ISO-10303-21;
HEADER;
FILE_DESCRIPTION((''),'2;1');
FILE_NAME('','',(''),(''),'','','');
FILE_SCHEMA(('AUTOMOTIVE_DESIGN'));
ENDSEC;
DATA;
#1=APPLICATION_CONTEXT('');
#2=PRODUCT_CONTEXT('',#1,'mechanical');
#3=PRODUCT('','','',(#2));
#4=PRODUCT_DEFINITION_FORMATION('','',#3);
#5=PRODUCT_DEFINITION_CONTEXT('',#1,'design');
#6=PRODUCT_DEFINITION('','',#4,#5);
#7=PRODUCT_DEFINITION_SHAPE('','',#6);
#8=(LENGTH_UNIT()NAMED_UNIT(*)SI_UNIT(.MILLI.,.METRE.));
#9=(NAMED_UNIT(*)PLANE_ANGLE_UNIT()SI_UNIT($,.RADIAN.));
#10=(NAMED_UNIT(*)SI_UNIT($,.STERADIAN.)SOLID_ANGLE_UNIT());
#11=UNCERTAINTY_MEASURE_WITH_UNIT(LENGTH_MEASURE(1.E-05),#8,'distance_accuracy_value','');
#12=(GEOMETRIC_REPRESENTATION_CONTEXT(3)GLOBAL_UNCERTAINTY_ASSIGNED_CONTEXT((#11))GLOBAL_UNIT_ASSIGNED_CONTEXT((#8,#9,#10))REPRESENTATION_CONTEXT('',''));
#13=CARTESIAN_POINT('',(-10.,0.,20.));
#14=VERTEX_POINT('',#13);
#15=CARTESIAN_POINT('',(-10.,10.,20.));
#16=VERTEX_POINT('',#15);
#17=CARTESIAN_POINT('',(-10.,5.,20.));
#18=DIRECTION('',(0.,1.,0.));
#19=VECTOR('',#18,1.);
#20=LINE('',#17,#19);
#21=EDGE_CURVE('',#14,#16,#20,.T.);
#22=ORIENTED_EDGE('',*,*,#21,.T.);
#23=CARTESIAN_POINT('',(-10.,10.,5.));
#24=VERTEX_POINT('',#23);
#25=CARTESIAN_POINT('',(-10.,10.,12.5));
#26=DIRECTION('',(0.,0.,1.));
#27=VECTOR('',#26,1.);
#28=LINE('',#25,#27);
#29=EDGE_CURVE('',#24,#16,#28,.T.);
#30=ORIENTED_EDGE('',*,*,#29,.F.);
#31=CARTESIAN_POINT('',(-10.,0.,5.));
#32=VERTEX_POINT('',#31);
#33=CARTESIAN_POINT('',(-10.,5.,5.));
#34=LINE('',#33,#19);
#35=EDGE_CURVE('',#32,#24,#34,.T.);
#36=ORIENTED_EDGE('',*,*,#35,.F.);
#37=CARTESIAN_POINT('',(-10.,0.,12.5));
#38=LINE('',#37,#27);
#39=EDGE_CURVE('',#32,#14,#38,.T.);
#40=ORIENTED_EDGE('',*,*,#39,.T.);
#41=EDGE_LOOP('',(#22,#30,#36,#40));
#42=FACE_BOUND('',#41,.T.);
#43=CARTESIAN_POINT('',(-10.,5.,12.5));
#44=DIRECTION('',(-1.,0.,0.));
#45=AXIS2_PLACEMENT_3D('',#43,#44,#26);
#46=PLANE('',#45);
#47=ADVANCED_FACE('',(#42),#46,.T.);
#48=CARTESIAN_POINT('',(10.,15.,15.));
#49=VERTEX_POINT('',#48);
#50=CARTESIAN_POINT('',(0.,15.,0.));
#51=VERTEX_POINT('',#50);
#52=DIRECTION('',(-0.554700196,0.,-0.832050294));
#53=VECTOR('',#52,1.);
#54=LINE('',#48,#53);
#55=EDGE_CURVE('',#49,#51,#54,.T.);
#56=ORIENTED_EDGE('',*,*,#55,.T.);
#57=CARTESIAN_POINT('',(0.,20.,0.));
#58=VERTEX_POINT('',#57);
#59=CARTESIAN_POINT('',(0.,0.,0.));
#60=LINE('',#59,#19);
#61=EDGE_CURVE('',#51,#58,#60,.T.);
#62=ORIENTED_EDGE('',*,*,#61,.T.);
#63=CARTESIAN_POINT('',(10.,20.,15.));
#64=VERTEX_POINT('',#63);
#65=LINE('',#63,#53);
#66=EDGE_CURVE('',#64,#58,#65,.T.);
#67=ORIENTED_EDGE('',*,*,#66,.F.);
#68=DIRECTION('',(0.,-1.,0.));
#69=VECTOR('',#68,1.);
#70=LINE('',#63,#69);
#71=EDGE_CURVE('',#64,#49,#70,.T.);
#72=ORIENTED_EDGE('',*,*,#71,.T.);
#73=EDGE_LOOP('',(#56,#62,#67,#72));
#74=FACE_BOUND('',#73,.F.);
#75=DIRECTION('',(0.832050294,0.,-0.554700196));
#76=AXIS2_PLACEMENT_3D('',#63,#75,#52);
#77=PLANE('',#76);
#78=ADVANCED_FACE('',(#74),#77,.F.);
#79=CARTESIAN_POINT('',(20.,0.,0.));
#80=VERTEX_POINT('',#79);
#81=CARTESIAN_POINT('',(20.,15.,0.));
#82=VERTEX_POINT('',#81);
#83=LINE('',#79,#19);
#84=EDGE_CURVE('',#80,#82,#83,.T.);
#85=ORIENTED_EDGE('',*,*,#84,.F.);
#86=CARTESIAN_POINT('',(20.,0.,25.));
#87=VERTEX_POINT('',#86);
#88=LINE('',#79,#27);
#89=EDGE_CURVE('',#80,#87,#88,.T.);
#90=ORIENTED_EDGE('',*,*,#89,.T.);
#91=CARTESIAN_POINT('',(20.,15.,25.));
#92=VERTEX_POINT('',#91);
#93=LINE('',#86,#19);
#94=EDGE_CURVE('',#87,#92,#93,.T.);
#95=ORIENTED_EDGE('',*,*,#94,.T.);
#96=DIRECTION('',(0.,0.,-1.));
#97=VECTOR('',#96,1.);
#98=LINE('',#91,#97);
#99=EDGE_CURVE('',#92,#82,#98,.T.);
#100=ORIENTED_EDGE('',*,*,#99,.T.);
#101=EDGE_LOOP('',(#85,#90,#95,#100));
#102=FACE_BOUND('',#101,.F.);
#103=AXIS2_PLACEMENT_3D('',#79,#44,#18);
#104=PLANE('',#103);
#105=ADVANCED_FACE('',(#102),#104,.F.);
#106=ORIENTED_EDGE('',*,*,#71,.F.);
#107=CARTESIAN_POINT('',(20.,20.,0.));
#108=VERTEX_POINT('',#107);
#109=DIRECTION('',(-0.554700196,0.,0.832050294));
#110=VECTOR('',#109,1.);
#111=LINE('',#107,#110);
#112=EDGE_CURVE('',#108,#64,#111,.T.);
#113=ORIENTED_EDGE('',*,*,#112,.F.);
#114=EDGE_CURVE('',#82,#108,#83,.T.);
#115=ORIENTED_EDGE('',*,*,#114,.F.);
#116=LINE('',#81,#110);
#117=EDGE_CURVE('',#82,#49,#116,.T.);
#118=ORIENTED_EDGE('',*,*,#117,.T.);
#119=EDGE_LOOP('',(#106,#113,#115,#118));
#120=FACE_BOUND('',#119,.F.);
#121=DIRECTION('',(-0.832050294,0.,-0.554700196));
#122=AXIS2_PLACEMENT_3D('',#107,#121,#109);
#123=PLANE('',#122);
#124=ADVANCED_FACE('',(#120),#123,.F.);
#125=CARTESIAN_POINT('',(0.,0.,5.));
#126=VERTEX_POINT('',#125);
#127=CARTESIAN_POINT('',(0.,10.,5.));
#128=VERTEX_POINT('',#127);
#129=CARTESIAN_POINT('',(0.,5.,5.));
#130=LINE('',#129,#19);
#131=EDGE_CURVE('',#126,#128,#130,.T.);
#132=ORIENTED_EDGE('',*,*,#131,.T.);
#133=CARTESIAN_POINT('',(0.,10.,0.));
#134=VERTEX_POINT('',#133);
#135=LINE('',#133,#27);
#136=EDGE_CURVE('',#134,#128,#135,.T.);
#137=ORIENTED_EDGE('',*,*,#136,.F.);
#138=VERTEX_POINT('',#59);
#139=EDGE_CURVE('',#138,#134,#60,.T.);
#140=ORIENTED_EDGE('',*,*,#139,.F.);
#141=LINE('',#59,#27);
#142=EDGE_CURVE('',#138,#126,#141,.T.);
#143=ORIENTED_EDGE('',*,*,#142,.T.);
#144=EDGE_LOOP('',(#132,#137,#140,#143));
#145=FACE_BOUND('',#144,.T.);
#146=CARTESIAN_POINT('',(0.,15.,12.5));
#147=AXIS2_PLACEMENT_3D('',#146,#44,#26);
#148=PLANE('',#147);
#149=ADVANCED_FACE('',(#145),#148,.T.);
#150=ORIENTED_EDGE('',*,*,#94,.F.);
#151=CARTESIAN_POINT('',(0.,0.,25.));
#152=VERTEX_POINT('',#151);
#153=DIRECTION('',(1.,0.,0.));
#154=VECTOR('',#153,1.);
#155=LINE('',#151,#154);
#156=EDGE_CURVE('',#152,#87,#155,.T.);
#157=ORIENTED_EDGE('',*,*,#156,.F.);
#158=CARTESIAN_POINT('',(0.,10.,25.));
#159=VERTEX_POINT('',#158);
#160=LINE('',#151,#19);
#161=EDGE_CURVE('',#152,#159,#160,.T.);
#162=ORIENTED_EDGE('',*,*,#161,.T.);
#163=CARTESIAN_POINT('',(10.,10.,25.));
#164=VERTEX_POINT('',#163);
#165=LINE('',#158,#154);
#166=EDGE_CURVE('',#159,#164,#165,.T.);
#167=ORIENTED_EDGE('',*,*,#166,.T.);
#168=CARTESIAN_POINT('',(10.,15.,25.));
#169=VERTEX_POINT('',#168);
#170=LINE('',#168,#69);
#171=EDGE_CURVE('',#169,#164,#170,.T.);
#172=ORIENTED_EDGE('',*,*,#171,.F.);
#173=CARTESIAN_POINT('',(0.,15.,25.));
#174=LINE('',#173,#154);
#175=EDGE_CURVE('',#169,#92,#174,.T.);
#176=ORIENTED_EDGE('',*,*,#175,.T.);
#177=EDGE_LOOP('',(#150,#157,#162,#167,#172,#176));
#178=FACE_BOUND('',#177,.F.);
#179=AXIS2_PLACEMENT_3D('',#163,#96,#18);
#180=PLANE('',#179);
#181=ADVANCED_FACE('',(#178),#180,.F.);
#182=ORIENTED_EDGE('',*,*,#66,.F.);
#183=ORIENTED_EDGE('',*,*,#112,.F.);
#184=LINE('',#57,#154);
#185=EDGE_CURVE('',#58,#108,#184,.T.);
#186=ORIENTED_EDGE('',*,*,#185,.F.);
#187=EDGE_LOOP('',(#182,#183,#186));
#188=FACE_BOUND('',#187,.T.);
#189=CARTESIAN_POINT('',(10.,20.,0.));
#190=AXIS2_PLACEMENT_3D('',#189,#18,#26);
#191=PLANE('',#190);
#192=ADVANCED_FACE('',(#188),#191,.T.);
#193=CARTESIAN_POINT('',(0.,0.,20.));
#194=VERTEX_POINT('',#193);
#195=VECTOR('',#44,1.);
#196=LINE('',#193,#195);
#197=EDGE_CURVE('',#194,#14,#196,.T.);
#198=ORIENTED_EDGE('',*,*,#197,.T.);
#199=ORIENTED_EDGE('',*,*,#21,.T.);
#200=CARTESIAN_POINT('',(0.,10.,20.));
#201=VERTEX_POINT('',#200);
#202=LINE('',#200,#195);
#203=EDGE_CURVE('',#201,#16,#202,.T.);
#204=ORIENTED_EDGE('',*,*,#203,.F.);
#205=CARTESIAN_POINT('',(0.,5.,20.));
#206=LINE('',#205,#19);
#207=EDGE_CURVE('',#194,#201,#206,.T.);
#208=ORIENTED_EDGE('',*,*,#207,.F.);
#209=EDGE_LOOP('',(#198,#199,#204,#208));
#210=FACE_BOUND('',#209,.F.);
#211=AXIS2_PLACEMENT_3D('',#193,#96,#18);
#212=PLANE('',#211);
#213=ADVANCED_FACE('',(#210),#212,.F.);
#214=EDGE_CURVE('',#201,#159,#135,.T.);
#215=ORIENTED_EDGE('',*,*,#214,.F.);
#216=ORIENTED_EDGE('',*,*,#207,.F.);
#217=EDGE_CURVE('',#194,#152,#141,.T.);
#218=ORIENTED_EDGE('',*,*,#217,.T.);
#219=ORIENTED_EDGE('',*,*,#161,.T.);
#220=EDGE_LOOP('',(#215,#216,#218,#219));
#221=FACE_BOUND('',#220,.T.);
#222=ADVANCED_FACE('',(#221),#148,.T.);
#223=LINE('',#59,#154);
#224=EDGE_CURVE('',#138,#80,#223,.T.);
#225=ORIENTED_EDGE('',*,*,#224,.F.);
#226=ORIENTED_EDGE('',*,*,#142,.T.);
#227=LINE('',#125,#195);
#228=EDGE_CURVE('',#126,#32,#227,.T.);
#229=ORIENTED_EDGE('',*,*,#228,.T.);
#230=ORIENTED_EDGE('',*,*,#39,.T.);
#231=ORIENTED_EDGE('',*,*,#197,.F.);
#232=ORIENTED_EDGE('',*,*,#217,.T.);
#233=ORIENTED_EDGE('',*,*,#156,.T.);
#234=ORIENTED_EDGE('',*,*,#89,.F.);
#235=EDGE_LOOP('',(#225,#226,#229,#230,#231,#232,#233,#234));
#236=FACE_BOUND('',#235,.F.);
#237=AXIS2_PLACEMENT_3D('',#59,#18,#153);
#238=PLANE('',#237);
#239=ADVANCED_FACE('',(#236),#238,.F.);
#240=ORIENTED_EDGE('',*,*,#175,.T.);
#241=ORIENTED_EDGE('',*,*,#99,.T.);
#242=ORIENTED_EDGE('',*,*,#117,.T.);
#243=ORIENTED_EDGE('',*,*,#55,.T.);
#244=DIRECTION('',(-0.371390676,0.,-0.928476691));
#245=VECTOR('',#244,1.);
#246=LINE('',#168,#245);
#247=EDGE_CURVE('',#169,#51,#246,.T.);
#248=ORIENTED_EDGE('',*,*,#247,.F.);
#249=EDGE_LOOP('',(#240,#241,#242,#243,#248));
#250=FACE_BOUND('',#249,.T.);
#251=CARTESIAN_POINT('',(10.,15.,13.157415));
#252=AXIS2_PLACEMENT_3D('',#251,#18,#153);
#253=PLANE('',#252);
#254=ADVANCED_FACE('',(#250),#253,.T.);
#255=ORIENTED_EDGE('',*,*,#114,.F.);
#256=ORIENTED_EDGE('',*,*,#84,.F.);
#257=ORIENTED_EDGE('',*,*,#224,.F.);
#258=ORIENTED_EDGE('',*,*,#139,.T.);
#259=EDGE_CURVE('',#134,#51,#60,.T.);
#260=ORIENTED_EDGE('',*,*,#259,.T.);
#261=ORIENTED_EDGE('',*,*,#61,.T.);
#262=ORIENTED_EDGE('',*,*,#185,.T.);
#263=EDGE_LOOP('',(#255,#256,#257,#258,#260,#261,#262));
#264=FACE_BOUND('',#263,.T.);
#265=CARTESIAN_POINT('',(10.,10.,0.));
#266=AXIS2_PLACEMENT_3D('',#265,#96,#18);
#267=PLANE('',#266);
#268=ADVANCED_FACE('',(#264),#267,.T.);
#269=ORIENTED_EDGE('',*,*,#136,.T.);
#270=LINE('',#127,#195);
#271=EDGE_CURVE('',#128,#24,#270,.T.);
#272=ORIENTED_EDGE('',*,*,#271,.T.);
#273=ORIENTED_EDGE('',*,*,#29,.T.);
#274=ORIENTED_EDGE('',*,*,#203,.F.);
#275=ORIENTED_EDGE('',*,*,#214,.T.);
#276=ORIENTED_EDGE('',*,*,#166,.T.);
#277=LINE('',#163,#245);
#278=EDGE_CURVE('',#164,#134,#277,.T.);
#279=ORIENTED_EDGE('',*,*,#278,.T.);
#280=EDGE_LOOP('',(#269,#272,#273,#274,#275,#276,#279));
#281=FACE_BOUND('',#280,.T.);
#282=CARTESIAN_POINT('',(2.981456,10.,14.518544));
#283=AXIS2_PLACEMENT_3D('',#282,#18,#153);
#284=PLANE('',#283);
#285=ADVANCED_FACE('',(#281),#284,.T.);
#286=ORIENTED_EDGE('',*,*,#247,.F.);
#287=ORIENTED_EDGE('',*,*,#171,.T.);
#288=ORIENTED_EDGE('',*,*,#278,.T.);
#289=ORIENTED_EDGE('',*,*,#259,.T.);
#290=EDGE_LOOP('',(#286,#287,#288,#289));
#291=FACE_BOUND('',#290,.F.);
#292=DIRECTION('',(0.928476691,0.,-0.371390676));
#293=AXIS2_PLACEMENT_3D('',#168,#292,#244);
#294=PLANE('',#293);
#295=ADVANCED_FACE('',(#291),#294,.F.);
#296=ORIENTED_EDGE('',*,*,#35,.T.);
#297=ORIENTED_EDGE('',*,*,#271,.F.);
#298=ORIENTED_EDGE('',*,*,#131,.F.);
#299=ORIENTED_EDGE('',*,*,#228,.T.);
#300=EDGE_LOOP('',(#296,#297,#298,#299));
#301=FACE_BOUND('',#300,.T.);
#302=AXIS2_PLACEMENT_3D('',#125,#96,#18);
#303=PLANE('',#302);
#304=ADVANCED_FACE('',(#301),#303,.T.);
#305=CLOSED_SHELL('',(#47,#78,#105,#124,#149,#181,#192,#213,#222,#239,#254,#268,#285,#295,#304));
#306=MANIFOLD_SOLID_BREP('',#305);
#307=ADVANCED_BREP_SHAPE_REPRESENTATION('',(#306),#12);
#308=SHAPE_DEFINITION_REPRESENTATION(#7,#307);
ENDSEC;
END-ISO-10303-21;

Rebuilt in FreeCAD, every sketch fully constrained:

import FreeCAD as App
import Part
import Sketcher
from FreeCAD import Vector
Q = App.Units.Quantity

doc = App.newDocument("Part")
body = doc.addObject("PartDesign::Body", "Body")

sketch1 = body.newObject("Sketcher::SketchObject", "Sketch")
sketch1.AttachmentSupport = (doc.getObject("XY_Plane"), [""])
sketch1.MapMode = "FlatFace"
sketch1.addGeometry([
    Part.LineSegment(Vector(0, 0, 0), Vector(20, 0, 0)),
    Part.LineSegment(Vector(20, 0, 0), Vector(20, 20, 0)),
    Part.LineSegment(Vector(20, 20, 0), Vector(10, 20, 0)),
    Part.LineSegment(Vector(10, 20, 0), Vector(10, 10, 0)),
    Part.LineSegment(Vector(10, 10, 0), Vector(0, 10, 0)),
    Part.LineSegment(Vector(0, 10, 0), Vector(0, 0, 0)),
], False)
sketch1.addConstraint([
    Sketcher.Constraint("Coincident", 0, 2, 1, 1),
    Sketcher.Constraint("Coincident", 1, 2, 2, 1),
    Sketcher.Constraint("Coincident", 2, 2, 3, 1),
    Sketcher.Constraint("Coincident", 3, 2, 4, 1),
    Sketcher.Constraint("Coincident", 4, 2, 5, 1),
    Sketcher.Constraint("Coincident", 5, 2, 0, 1),
    Sketcher.Constraint("Horizontal", 0),
    Sketcher.Constraint("Vertical", 1),
    Sketcher.Constraint("Horizontal", 2),
    Sketcher.Constraint("Vertical", 3),
    Sketcher.Constraint("Horizontal", 4),
    Sketcher.Constraint("Vertical", 5),
    Sketcher.Constraint("Coincident", 5, 2, -1, 1),
    Sketcher.Constraint("Equal", 2, 4),
    Sketcher.Constraint("Equal", 0, 1),
    Sketcher.Constraint("Equal", 4, 3),
    Sketcher.Constraint("DistanceX", 0, 1, 0, 2, Q("20 mm")),
])
pad1 = body.newObject("PartDesign::Pad", "Pad")
pad1.Profile = sketch1
pad1.Length = 25

sketch2 = body.newObject("Sketcher::SketchObject", "Sketch001")
sketch2.AttachmentSupport = (doc.getObject("YZ_Plane"), [""])
sketch2.MapMode = "FlatFace"
sketch2.addGeometry([
    Part.LineSegment(Vector(10, 5, 0), Vector(0, 5, 0)),
    Part.LineSegment(Vector(0, 5, 0), Vector(0, 20, 0)),
    Part.LineSegment(Vector(0, 20, 0), Vector(10, 20, 0)),
    Part.LineSegment(Vector(10, 20, 0), Vector(10, 5, 0)),
], False)
sketch2.addConstraint([
    Sketcher.Constraint("Coincident", 0, 2, 1, 1),
    Sketcher.Constraint("Coincident", 1, 2, 2, 1),
    Sketcher.Constraint("Coincident", 2, 2, 3, 1),
    Sketcher.Constraint("Coincident", 3, 2, 0, 1),
    Sketcher.Constraint("Horizontal", 0),
    Sketcher.Constraint("Vertical", 1),
    Sketcher.Constraint("Horizontal", 2),
    Sketcher.Constraint("Vertical", 3),
    Sketcher.Constraint("PointOnObject", 0, 2, -2),
    Sketcher.Constraint("DistanceX", 0, 2, 0, 1, Q("10 mm")),
    Sketcher.Constraint("DistanceY", 1, 1, 1, 2, Q("15 mm")),
    Sketcher.Constraint("DistanceY", -1, 1, 0, 2, Q("5 mm")),
])
pad2 = body.newObject("PartDesign::Pad", "Pad001")
pad2.Profile = sketch2
pad2.Length = 10
pad2.Reversed = True

sketch3 = body.newObject("Sketcher::SketchObject", "Sketch002")
sketch3.AttachmentSupport = (doc.getObject("YZ_Plane"), [""])
sketch3.MapMode = "FlatFace"
sketch3.AttachmentOffset = App.Placement(Vector(0, 0, 10), App.Rotation())
sketch3.addGeometry([
    Part.LineSegment(Vector(20, 0, 0), Vector(10, 0, 0)),
    Part.LineSegment(Vector(10, 0, 0), Vector(10, 25, 0)),
    Part.LineSegment(Vector(10, 25, 0), Vector(20, 25, 0)),
    Part.LineSegment(Vector(20, 25, 0), Vector(20, 0, 0)),
], False)
sketch3.addConstraint([
    Sketcher.Constraint("Coincident", 0, 2, 1, 1),
    Sketcher.Constraint("Coincident", 1, 2, 2, 1),
    Sketcher.Constraint("Coincident", 2, 2, 3, 1),
    Sketcher.Constraint("Coincident", 3, 2, 0, 1),
    Sketcher.Constraint("Horizontal", 0),
    Sketcher.Constraint("Vertical", 1),
    Sketcher.Constraint("Horizontal", 2),
    Sketcher.Constraint("Vertical", 3),
    Sketcher.Constraint("PointOnObject", 0, 2, -1),
    Sketcher.Constraint("DistanceX", 0, 2, 0, 1, Q("10 mm")),
    Sketcher.Constraint("DistanceY", 1, 1, 1, 2, Q("25 mm")),
    Sketcher.Constraint("DistanceX", -1, 1, 0, 2, Q("10 mm")),
])
pad3 = body.newObject("PartDesign::Pad", "Pad002")
pad3.Profile = sketch3
pad3.Length = 10
pad3.Reversed = True

sketch4 = body.newObject("Sketcher::SketchObject", "Sketch003")
sketch4.AttachmentSupport = (doc.getObject("XZ_Plane"), [""])
sketch4.MapMode = "FlatFace"
sketch4.AttachmentOffset = App.Placement(Vector(0, 0, -20), App.Rotation())
sketch4.addGeometry([
    Part.LineSegment(Vector(0, 0, 0), Vector(0, 25, 0)),
    Part.LineSegment(Vector(0, 25, 0), Vector(20, 25, 0)),
    Part.LineSegment(Vector(20, 25, 0), Vector(20, 0, 0)),
    Part.LineSegment(Vector(20, 0, 0), Vector(10, 15, 0)),
    Part.LineSegment(Vector(10, 15, 0), Vector(0, 0, 0)),
], False)
sketch4.addConstraint([
    Sketcher.Constraint("Coincident", 0, 2, 1, 1),
    Sketcher.Constraint("Coincident", 1, 2, 2, 1),
    Sketcher.Constraint("Coincident", 2, 2, 3, 1),
    Sketcher.Constraint("Coincident", 3, 2, 4, 1),
    Sketcher.Constraint("Coincident", 4, 2, 0, 1),
    Sketcher.Constraint("Vertical", 0),
    Sketcher.Constraint("Horizontal", 1),
    Sketcher.Constraint("Vertical", 2),
    Sketcher.Constraint("Coincident", 4, 2, -1, 1),
    Sketcher.Constraint("PointOnObject", 2, 2, -1),
    Sketcher.Constraint("Equal", 3, 4),
    Sketcher.Constraint("DistanceX", 1, 1, 1, 2, Q("20 mm")),
    Sketcher.Constraint("DistanceY", 0, 1, 0, 2, Q("25 mm")),
    Sketcher.Constraint("DistanceY", -1, 1, 3, 2, Q("15 mm")),
])
pocket1 = body.newObject("PartDesign::Pocket", "Pocket")
pocket1.Profile = sketch4
pocket1.Length = 5
pocket1.Reversed = True

sketch5 = body.newObject("Sketcher::SketchObject", "Sketch004")
sketch5.AttachmentSupport = (doc.getObject("XZ_Plane"), [""])
sketch5.MapMode = "FlatFace"
sketch5.AttachmentOffset = App.Placement(Vector(0, 0, -15), App.Rotation())
sketch5.addGeometry([
    Part.LineSegment(Vector(0, 25, 0), Vector(10, 25, 0)),
    Part.LineSegment(Vector(10, 25, 0), Vector(0, 0, 0)),
    Part.LineSegment(Vector(0, 0, 0), Vector(0, 25, 0)),
], False)
sketch5.addConstraint([
    Sketcher.Constraint("Coincident", 0, 2, 1, 1),
    Sketcher.Constraint("Coincident", 1, 2, 2, 1),
    Sketcher.Constraint("Coincident", 2, 2, 0, 1),
    Sketcher.Constraint("Horizontal", 0),
    Sketcher.Constraint("Vertical", 2),
    Sketcher.Constraint("Coincident", 1, 2, -1, 1),
    Sketcher.Constraint("DistanceX", 0, 1, 0, 2, Q("10 mm")),
    Sketcher.Constraint("DistanceY", 2, 1, 2, 2, Q("25 mm")),
])
pocket2 = body.newObject("PartDesign::Pocket", "Pocket001")
pocket2.Profile = sketch5
pocket2.Length = 5
pocket2.Reversed = True

doc.recompute()
